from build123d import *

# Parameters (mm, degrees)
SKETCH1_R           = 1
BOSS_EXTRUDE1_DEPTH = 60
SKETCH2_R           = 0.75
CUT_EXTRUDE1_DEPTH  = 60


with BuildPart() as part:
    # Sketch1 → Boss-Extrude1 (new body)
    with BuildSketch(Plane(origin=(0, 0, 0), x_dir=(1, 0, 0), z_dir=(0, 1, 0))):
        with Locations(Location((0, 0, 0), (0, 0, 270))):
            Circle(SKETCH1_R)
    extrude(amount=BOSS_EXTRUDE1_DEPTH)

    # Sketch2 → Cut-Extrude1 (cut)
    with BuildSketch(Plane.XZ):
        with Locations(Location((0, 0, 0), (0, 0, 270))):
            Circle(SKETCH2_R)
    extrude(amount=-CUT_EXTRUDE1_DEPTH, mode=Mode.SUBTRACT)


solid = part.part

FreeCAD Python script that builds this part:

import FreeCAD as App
import Part
import Sketcher
from FreeCAD import Vector
Q = App.Units.Quantity

doc = App.newDocument("Part")
body = doc.addObject("PartDesign::Body", "Body")

# Sketch on XZ plane
sketch1 = body.newObject("Sketcher::SketchObject", "Sketch")
sketch1.AttachmentSupport = (doc.getObject("XZ_Plane"), [""])
sketch1.MapMode = "FlatFace"
sketch1.addGeometry(Part.Circle(Vector(0, 0, 0), Vector(0, 0, 1), 1), False)
sketch1.addConstraint([
    Sketcher.Constraint("Coincident", 0, 3, -1, 1),
    Sketcher.Constraint("Diameter", 0, Q("2 mm")),
])
pad1 = body.newObject("PartDesign::Pad", "Pad")
pad1.Profile = sketch1
pad1.Length = 60
pad1.Reversed = True

# Sketch on XZ plane
sketch2 = body.newObject("Sketcher::SketchObject", "Sketch001")
sketch2.AttachmentSupport = (doc.getObject("XZ_Plane"), [""])
sketch2.MapMode = "FlatFace"
sketch2.addGeometry(Part.Circle(Vector(0, 0, 0), Vector(0, 0, 1), 0.8), False)
sketch2.addConstraint([
    Sketcher.Constraint("Coincident", 0, 3, -1, 1),
    Sketcher.Constraint("Diameter", 0, Q("1.5 mm")),
])
pocket1 = body.newObject("PartDesign::Pocket", "Pocket")
pocket1.Profile = sketch2
pocket1.Length = 60

doc.recompute()
